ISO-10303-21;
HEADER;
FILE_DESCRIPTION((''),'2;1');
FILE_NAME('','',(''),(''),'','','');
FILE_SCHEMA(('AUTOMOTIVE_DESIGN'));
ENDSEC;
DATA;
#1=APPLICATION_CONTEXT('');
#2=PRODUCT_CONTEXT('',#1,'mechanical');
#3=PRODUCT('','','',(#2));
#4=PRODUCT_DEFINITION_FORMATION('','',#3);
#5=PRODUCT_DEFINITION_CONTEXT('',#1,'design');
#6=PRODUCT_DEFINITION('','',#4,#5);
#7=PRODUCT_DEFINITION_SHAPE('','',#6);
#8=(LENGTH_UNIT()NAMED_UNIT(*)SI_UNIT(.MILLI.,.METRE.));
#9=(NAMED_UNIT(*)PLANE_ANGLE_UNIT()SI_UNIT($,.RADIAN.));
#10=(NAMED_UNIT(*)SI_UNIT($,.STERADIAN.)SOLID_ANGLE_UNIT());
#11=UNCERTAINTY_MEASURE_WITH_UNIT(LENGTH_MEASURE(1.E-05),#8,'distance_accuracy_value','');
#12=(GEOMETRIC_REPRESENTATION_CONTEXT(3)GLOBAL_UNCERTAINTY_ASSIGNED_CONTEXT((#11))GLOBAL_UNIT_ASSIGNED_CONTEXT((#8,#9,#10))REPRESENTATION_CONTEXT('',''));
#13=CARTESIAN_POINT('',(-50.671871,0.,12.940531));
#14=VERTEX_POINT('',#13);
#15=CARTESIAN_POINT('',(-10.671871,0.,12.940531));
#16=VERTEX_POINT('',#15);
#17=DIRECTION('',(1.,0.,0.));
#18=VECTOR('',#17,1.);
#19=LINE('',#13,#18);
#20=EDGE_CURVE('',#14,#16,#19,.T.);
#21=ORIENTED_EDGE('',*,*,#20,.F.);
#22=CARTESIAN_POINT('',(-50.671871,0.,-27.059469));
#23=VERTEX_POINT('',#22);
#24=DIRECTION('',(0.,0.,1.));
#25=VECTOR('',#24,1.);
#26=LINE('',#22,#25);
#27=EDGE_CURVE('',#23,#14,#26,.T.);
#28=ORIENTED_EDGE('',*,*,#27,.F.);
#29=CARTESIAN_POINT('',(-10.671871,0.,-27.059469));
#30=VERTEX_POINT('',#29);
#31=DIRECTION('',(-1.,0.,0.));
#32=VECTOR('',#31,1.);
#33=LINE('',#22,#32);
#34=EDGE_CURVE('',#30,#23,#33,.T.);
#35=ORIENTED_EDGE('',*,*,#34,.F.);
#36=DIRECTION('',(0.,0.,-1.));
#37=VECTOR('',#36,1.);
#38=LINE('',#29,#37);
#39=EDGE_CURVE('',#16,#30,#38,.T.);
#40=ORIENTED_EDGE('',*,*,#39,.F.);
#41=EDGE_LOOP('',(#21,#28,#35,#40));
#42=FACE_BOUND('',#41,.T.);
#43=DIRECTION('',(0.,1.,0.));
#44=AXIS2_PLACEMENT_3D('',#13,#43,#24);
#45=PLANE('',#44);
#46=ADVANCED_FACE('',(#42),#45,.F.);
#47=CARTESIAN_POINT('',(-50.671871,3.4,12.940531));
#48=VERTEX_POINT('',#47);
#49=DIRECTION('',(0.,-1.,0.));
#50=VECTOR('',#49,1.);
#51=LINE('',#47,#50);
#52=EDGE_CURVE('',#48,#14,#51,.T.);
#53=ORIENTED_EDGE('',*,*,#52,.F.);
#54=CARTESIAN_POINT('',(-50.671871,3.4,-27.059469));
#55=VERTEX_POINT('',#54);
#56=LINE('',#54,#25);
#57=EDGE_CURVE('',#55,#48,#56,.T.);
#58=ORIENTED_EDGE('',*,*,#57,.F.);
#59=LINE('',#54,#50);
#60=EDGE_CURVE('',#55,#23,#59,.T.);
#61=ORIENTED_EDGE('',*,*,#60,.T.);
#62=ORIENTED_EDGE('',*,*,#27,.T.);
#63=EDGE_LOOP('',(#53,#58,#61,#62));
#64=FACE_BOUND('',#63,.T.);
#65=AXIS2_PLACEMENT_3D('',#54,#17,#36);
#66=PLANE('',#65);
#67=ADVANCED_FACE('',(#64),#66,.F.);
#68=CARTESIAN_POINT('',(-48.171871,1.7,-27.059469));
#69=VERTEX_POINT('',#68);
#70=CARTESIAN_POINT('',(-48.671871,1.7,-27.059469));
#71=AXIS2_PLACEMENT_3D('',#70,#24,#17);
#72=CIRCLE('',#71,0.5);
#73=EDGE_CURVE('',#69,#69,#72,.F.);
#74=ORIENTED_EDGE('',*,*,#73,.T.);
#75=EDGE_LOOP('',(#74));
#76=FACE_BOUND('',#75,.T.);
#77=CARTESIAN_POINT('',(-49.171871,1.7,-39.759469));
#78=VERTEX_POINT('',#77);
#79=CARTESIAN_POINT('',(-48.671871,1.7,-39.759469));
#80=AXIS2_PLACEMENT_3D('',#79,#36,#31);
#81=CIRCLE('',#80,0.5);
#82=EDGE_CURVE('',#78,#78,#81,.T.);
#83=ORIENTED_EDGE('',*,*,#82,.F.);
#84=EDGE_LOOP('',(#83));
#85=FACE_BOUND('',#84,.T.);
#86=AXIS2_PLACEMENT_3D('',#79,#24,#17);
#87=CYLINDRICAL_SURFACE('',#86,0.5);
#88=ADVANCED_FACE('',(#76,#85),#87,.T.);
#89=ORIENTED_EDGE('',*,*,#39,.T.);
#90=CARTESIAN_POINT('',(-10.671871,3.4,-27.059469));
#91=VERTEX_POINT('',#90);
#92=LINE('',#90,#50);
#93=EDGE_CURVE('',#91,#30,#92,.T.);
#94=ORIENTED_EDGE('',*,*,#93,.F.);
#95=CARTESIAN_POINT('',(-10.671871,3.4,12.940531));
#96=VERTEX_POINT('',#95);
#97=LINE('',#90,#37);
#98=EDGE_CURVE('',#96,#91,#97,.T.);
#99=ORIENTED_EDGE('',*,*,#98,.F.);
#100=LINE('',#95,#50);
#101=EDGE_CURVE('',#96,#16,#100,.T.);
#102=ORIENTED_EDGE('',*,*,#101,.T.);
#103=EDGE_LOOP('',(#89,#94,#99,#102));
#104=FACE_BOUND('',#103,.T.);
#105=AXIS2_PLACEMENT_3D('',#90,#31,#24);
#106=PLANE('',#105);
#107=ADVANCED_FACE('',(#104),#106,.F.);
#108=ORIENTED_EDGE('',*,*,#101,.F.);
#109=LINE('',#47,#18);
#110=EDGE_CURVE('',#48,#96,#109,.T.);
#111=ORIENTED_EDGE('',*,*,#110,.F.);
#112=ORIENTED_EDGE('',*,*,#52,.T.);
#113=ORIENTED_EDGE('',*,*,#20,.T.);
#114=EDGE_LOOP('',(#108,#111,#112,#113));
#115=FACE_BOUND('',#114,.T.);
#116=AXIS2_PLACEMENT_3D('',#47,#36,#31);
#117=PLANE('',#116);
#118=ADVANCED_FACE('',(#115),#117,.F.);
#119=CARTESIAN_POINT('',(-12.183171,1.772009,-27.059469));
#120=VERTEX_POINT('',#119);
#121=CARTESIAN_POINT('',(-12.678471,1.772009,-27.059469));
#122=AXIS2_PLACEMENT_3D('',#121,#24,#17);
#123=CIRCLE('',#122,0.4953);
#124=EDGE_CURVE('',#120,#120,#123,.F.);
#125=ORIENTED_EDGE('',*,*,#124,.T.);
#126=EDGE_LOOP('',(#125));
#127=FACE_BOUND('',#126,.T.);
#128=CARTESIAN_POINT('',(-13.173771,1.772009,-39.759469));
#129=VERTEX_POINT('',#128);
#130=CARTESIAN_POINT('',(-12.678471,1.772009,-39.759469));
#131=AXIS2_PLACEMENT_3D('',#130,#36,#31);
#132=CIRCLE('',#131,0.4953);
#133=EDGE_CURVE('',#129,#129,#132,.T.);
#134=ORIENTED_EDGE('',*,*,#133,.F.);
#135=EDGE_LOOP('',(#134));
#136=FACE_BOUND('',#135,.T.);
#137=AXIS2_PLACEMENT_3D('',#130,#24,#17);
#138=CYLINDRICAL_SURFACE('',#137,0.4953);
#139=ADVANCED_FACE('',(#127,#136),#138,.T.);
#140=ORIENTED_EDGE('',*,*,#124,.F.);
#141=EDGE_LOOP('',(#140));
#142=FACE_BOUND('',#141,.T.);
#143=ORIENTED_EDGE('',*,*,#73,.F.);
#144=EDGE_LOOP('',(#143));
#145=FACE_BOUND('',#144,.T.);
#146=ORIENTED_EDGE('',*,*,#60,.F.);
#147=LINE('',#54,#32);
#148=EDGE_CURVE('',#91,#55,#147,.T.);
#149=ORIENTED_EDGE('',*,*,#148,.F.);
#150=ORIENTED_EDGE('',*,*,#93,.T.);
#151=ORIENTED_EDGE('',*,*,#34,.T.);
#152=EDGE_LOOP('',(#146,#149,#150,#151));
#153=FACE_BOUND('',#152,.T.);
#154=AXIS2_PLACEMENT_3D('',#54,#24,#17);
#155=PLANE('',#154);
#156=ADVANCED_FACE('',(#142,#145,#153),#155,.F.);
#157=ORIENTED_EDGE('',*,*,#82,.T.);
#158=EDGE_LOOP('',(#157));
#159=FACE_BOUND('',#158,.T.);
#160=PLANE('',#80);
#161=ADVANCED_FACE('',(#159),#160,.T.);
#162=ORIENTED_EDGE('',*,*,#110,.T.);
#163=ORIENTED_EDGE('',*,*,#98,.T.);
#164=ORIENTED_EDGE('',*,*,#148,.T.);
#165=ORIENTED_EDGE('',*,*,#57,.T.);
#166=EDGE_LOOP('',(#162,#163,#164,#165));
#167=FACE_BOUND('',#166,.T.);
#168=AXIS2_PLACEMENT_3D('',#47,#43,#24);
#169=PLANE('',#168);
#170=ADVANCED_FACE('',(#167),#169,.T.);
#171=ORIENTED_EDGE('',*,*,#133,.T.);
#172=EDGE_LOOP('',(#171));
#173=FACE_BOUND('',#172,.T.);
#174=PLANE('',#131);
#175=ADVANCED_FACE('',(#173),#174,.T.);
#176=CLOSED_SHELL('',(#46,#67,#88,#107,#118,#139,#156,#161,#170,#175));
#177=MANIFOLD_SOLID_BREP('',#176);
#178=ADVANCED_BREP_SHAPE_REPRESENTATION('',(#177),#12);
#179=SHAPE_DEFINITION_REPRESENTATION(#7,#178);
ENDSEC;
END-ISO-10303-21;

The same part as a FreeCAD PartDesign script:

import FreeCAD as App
import Part
import Sketcher

V = App.Vector


def add_polygon(sketch, points):
    """Adds a closed chain of lines whose ends are joined by coincident constraints."""
    first, n = sketch.GeometryCount, len(points)
    for a, b in zip(points, points[1:] + points[:1]):
        sketch.addGeometry(Part.LineSegment(App.Vector(*a, 0), App.Vector(*b, 0)), False)
    for i in range(n):
        sketch.addConstraint(Sketcher.Constraint("Coincident", first + i, 2, first + (i + 1) % n, 1))

doc = App.newDocument("Part")
body = doc.addObject("PartDesign::Body", "Body")

# Sketch on XZ plane
sketch1 = doc.addObject("Sketcher::SketchObject", "Sketch")
body.addObject(sketch1)
sketch1.AttachmentSupport = (doc.XZ_Plane, [""])
sketch1.MapMode = "FlatFace"
add_polygon(sketch1, [(-50.671871, -27.059469), (-50.671871, 12.940531), (-10.671871, 12.940531), (-10.671871, -27.059469)])  # lines 0-3
sketch1.addConstraint(Sketcher.Constraint("Vertical", 0))
sketch1.addConstraint(Sketcher.Constraint("Horizontal", 1))
sketch1.addConstraint(Sketcher.Constraint("Vertical", 2))
sketch1.addConstraint(Sketcher.Constraint("Horizontal", 3))
sketch1.addConstraint(Sketcher.Constraint("Equal", 3, 0))
sketch1.addConstraint(Sketcher.Constraint("DistanceX", 1, 1, 1, 2, 40.0))
sketch1.addConstraint(Sketcher.Constraint("DistanceX", 0, 2, -1, 1, 50.671871))
sketch1.addConstraint(Sketcher.Constraint("DistanceY", -1, 1, 0, 2, 12.940531))
pad1 = doc.addObject("PartDesign::Pad", "Pad")
body.addObject(pad1)
pad1.Profile = sketch1
pad1.Length = 3.4
pad1.Reversed = True

# Sketch on XY plane
sketch2 = doc.addObject("Sketcher::SketchObject", "Sketch001")
body.addObject(sketch2)
sketch2.AttachmentSupport = (doc.XY_Plane, [""])
sketch2.MapMode = "FlatFace"
sketch2.AttachmentOffset = App.Placement(V(0, 0, -27.059469), App.Rotation())
sketch2.addGeometry(Part.Circle(V(-48.671871, 1.7, 0), V(0, 0, 1), 0.5), False)
sketch2.addConstraint(Sketcher.Constraint("Diameter", 0, 1.0))
sketch2.addConstraint(Sketcher.Constraint("DistanceY", -1, 1, 0, 3, 1.7))
sketch2.addConstraint(Sketcher.Constraint("DistanceX", 0, 3, -1, 1, 48.671871))
pad2 = doc.addObject("PartDesign::Pad", "Pad001")
body.addObject(pad2)
pad2.Profile = sketch2
pad2.Length = 12.7
pad2.Reversed = True

# Sketch on XY plane
sketch3 = doc.addObject("Sketcher::SketchObject", "Sketch002")
body.addObject(sketch3)
sketch3.AttachmentSupport = (doc.XY_Plane, [""])
sketch3.MapMode = "FlatFace"
sketch3.AttachmentOffset = App.Placement(V(0, 0, -27.059469), App.Rotation())
sketch3.addGeometry(Part.Circle(V(-12.678471, 1.772009, 0), V(0, 0, 1), 0.4953), False)
sketch3.addConstraint(Sketcher.Constraint("Diameter", 0, 0.9906))
sketch3.addConstraint(Sketcher.Constraint("DistanceX", 0, 3, -1, 1, 12.678471))
sketch3.addConstraint(Sketcher.Constraint("DistanceY", -1, 1, 0, 3, 1.772009))
pad3 = doc.addObject("PartDesign::Pad", "Pad002")
body.addObject(pad3)
pad3.Profile = sketch3
pad3.Length = 12.7
pad3.Reversed = True

doc.recompute()
